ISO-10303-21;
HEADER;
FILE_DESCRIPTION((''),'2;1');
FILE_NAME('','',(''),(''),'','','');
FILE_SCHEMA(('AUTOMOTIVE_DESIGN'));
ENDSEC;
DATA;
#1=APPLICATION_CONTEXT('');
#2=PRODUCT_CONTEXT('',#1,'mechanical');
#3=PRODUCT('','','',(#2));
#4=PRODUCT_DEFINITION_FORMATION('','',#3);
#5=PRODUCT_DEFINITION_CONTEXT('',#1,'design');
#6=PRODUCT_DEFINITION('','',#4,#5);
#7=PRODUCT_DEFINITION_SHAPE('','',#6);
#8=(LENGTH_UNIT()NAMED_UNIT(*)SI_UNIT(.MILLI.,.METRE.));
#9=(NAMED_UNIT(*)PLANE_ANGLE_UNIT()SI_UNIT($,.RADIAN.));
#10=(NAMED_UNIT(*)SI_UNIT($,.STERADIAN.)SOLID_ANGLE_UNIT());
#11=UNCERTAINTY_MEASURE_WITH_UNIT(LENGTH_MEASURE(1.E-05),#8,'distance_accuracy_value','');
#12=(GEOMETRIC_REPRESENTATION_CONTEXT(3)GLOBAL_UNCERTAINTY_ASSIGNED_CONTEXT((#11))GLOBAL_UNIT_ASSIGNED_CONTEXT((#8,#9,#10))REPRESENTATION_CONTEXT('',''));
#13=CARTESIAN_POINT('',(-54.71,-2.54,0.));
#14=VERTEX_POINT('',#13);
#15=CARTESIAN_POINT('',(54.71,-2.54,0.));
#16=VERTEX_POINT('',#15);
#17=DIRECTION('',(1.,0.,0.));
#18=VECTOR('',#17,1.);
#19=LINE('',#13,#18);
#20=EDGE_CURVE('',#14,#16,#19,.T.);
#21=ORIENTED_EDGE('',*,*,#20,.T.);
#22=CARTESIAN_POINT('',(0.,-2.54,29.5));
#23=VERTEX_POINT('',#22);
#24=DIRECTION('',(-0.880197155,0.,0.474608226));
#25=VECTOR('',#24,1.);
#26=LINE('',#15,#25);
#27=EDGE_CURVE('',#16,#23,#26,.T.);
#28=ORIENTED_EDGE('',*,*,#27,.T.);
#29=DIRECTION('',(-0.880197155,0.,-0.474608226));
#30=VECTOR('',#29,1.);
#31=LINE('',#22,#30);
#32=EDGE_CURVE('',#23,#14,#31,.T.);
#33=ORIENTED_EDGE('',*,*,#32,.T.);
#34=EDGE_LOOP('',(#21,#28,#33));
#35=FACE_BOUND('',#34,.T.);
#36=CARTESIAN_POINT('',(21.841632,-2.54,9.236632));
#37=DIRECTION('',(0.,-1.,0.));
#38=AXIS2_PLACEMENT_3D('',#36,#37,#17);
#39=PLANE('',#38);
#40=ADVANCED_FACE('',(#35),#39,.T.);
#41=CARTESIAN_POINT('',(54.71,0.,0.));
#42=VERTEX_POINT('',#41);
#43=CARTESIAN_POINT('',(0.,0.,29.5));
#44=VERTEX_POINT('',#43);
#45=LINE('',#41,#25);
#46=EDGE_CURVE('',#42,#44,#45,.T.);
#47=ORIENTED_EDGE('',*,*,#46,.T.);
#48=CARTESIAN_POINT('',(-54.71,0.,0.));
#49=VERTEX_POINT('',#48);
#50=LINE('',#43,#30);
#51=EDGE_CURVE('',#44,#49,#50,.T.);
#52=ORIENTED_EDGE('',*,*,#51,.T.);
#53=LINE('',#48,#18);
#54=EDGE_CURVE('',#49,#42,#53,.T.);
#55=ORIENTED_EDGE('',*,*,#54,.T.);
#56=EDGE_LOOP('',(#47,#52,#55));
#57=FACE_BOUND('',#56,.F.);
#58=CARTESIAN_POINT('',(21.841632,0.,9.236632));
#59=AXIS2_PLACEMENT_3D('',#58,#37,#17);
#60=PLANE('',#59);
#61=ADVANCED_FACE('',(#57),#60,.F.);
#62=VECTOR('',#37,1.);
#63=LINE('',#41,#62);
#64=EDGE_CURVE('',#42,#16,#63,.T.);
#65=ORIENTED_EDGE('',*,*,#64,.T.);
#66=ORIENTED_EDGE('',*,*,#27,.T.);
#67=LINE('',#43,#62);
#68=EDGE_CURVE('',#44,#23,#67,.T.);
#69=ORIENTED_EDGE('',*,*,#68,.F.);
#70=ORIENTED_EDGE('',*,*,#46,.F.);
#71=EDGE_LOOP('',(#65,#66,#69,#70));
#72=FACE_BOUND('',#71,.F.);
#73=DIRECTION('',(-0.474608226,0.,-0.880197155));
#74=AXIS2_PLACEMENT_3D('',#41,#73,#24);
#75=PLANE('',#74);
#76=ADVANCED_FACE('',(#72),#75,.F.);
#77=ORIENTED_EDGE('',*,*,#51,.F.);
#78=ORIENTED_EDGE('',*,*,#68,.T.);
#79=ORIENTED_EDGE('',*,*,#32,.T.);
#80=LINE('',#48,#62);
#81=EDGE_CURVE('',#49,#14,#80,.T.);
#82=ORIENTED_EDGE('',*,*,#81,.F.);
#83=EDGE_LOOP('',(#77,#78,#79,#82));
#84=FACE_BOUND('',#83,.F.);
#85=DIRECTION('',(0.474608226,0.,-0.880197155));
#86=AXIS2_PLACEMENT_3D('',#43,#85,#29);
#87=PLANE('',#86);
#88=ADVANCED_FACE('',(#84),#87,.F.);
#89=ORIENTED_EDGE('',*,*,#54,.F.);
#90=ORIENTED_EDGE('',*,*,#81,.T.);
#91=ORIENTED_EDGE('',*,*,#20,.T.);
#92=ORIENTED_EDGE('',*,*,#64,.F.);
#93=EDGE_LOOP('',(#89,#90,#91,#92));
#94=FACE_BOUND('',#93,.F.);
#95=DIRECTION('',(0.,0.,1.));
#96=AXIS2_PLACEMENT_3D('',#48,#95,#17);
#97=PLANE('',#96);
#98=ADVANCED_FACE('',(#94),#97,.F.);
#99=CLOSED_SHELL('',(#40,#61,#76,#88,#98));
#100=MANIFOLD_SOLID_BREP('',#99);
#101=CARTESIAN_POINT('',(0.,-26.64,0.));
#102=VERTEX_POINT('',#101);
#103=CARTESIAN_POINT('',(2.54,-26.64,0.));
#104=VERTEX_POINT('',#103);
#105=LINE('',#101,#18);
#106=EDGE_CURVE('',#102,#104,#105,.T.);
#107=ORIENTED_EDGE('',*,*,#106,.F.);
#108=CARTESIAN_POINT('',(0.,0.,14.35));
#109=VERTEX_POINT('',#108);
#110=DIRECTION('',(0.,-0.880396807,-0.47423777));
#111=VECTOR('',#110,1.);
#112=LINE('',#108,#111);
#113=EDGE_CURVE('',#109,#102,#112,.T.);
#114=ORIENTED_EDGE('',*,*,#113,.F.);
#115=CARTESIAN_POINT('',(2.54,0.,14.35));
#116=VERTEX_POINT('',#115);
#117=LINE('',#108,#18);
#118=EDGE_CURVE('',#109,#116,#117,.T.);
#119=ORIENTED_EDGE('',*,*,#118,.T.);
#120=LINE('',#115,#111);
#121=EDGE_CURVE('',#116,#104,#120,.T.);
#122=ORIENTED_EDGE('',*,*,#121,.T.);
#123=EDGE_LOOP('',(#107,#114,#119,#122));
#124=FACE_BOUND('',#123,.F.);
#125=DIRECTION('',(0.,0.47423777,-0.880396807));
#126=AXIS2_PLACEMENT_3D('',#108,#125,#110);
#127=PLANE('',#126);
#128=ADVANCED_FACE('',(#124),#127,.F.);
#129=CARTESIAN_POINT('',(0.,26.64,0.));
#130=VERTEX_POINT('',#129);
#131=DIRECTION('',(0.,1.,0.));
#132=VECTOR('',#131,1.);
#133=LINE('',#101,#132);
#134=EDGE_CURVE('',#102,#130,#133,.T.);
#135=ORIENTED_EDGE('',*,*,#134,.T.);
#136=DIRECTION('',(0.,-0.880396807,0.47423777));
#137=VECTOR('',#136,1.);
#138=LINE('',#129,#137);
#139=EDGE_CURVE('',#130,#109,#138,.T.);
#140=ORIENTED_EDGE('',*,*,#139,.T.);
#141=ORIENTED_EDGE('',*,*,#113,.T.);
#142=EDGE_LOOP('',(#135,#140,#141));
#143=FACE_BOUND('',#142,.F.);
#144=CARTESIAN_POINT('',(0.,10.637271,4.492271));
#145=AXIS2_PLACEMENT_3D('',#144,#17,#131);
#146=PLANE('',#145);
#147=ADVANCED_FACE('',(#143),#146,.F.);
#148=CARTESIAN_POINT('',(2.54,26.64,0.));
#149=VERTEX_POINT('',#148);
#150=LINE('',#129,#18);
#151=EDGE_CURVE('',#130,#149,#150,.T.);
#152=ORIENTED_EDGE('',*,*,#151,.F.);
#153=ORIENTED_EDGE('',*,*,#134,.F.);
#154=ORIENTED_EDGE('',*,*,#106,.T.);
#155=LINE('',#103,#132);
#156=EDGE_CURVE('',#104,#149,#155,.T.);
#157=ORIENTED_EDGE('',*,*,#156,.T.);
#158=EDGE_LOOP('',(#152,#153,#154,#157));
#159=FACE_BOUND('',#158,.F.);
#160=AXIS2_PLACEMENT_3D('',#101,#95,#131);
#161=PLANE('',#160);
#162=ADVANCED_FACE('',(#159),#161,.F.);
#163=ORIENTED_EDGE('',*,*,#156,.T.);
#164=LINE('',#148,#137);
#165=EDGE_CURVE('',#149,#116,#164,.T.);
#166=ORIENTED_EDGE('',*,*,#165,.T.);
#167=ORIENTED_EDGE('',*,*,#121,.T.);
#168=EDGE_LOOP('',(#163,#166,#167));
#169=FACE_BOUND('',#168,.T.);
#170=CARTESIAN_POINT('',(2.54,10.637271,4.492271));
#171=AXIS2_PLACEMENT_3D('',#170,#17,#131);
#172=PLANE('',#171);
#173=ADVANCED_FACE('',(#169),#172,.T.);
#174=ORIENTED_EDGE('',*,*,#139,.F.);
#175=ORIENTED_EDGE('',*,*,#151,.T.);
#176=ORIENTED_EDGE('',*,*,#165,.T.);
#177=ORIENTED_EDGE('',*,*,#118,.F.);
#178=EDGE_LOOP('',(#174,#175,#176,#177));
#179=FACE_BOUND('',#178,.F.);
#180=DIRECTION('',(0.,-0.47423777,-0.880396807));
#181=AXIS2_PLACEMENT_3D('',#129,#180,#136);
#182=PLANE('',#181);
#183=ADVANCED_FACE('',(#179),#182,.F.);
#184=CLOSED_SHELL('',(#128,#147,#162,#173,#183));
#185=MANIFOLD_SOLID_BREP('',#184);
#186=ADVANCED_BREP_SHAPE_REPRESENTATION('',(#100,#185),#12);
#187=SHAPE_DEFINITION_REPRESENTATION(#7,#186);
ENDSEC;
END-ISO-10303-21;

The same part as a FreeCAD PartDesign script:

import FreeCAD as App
import Part
import Sketcher

V = App.Vector
Q = App.Units.Quantity


def add_polygon(sketch, points):
    """Adds a closed chain of lines whose ends are joined by coincident constraints."""
    first, n = sketch.GeometryCount, len(points)
    for a, b in zip(points, points[1:] + points[:1]):
        sketch.addGeometry(Part.LineSegment(App.Vector(*a, 0), App.Vector(*b, 0)), False)
    for i in range(n):
        sketch.addConstraint(Sketcher.Constraint("Coincident", first + i, 2, first + (i + 1) % n, 1))

doc = App.newDocument("Part")
body = doc.addObject("PartDesign::Body", "Body")

# Sketch on XZ plane
sketch1 = doc.addObject("Sketcher::SketchObject", "Sketch")
body.addObject(sketch1)
sketch1.AttachmentSupport = (doc.XZ_Plane, [""])
sketch1.MapMode = "FlatFace"
add_polygon(sketch1, [(54.71, 0), (0, 29.5), (-54.71, 0)])  # lines 0-2
sketch1.addConstraint(Sketcher.Constraint("Horizontal", 2))
sketch1.addConstraint(Sketcher.Constraint("Symmetric", 1, 2, 2, 2, -1, 1))
sketch1.addConstraint(Sketcher.Constraint("PointOnObject", 0, 2, -2))
sketch1.addConstraint(Sketcher.Constraint("DistanceX", 2, 1, 2, 2, Q("109.42 mm")))
sketch1.addConstraint(Sketcher.Constraint("DistanceY", -1, 1, 0, 2, Q("29.5 mm")))
pad1 = doc.addObject("PartDesign::Pad", "Pad")
body.addObject(pad1)
pad1.Profile = sketch1
pad1.Length = Q("0.1 in")
body2 = doc.addObject("PartDesign::Body", "Body001")

# Sketch on YZ plane
sketch2 = doc.addObject("Sketcher::SketchObject", "Sketch001")
body2.addObject(sketch2)
sketch2.AttachmentSupport = (doc.getObject("YZ_Plane001"), [""])
sketch2.MapMode = "FlatFace"
add_polygon(sketch2, [(26.64, 0), (0, 14.35), (-26.64, 0)])  # lines 0-2
sketch2.addConstraint(Sketcher.Constraint("Horizontal", 2))
sketch2.addConstraint(Sketcher.Constraint("Symmetric", 1, 2, 2, 2, -1, 1))
sketch2.addConstraint(Sketcher.Constraint("PointOnObject", 0, 2, -2))
sketch2.addConstraint(Sketcher.Constraint("DistanceX", 2, 1, 2, 2, Q("53.28 mm")))
sketch2.addConstraint(Sketcher.Constraint("DistanceY", -1, 1, 0, 2, Q("14.35 mm")))
pad2 = doc.addObject("PartDesign::Pad", "Pad001")
body2.addObject(pad2)
pad2.Profile = sketch2
pad2.Length = Q("0.1 in")

doc.recompute()
